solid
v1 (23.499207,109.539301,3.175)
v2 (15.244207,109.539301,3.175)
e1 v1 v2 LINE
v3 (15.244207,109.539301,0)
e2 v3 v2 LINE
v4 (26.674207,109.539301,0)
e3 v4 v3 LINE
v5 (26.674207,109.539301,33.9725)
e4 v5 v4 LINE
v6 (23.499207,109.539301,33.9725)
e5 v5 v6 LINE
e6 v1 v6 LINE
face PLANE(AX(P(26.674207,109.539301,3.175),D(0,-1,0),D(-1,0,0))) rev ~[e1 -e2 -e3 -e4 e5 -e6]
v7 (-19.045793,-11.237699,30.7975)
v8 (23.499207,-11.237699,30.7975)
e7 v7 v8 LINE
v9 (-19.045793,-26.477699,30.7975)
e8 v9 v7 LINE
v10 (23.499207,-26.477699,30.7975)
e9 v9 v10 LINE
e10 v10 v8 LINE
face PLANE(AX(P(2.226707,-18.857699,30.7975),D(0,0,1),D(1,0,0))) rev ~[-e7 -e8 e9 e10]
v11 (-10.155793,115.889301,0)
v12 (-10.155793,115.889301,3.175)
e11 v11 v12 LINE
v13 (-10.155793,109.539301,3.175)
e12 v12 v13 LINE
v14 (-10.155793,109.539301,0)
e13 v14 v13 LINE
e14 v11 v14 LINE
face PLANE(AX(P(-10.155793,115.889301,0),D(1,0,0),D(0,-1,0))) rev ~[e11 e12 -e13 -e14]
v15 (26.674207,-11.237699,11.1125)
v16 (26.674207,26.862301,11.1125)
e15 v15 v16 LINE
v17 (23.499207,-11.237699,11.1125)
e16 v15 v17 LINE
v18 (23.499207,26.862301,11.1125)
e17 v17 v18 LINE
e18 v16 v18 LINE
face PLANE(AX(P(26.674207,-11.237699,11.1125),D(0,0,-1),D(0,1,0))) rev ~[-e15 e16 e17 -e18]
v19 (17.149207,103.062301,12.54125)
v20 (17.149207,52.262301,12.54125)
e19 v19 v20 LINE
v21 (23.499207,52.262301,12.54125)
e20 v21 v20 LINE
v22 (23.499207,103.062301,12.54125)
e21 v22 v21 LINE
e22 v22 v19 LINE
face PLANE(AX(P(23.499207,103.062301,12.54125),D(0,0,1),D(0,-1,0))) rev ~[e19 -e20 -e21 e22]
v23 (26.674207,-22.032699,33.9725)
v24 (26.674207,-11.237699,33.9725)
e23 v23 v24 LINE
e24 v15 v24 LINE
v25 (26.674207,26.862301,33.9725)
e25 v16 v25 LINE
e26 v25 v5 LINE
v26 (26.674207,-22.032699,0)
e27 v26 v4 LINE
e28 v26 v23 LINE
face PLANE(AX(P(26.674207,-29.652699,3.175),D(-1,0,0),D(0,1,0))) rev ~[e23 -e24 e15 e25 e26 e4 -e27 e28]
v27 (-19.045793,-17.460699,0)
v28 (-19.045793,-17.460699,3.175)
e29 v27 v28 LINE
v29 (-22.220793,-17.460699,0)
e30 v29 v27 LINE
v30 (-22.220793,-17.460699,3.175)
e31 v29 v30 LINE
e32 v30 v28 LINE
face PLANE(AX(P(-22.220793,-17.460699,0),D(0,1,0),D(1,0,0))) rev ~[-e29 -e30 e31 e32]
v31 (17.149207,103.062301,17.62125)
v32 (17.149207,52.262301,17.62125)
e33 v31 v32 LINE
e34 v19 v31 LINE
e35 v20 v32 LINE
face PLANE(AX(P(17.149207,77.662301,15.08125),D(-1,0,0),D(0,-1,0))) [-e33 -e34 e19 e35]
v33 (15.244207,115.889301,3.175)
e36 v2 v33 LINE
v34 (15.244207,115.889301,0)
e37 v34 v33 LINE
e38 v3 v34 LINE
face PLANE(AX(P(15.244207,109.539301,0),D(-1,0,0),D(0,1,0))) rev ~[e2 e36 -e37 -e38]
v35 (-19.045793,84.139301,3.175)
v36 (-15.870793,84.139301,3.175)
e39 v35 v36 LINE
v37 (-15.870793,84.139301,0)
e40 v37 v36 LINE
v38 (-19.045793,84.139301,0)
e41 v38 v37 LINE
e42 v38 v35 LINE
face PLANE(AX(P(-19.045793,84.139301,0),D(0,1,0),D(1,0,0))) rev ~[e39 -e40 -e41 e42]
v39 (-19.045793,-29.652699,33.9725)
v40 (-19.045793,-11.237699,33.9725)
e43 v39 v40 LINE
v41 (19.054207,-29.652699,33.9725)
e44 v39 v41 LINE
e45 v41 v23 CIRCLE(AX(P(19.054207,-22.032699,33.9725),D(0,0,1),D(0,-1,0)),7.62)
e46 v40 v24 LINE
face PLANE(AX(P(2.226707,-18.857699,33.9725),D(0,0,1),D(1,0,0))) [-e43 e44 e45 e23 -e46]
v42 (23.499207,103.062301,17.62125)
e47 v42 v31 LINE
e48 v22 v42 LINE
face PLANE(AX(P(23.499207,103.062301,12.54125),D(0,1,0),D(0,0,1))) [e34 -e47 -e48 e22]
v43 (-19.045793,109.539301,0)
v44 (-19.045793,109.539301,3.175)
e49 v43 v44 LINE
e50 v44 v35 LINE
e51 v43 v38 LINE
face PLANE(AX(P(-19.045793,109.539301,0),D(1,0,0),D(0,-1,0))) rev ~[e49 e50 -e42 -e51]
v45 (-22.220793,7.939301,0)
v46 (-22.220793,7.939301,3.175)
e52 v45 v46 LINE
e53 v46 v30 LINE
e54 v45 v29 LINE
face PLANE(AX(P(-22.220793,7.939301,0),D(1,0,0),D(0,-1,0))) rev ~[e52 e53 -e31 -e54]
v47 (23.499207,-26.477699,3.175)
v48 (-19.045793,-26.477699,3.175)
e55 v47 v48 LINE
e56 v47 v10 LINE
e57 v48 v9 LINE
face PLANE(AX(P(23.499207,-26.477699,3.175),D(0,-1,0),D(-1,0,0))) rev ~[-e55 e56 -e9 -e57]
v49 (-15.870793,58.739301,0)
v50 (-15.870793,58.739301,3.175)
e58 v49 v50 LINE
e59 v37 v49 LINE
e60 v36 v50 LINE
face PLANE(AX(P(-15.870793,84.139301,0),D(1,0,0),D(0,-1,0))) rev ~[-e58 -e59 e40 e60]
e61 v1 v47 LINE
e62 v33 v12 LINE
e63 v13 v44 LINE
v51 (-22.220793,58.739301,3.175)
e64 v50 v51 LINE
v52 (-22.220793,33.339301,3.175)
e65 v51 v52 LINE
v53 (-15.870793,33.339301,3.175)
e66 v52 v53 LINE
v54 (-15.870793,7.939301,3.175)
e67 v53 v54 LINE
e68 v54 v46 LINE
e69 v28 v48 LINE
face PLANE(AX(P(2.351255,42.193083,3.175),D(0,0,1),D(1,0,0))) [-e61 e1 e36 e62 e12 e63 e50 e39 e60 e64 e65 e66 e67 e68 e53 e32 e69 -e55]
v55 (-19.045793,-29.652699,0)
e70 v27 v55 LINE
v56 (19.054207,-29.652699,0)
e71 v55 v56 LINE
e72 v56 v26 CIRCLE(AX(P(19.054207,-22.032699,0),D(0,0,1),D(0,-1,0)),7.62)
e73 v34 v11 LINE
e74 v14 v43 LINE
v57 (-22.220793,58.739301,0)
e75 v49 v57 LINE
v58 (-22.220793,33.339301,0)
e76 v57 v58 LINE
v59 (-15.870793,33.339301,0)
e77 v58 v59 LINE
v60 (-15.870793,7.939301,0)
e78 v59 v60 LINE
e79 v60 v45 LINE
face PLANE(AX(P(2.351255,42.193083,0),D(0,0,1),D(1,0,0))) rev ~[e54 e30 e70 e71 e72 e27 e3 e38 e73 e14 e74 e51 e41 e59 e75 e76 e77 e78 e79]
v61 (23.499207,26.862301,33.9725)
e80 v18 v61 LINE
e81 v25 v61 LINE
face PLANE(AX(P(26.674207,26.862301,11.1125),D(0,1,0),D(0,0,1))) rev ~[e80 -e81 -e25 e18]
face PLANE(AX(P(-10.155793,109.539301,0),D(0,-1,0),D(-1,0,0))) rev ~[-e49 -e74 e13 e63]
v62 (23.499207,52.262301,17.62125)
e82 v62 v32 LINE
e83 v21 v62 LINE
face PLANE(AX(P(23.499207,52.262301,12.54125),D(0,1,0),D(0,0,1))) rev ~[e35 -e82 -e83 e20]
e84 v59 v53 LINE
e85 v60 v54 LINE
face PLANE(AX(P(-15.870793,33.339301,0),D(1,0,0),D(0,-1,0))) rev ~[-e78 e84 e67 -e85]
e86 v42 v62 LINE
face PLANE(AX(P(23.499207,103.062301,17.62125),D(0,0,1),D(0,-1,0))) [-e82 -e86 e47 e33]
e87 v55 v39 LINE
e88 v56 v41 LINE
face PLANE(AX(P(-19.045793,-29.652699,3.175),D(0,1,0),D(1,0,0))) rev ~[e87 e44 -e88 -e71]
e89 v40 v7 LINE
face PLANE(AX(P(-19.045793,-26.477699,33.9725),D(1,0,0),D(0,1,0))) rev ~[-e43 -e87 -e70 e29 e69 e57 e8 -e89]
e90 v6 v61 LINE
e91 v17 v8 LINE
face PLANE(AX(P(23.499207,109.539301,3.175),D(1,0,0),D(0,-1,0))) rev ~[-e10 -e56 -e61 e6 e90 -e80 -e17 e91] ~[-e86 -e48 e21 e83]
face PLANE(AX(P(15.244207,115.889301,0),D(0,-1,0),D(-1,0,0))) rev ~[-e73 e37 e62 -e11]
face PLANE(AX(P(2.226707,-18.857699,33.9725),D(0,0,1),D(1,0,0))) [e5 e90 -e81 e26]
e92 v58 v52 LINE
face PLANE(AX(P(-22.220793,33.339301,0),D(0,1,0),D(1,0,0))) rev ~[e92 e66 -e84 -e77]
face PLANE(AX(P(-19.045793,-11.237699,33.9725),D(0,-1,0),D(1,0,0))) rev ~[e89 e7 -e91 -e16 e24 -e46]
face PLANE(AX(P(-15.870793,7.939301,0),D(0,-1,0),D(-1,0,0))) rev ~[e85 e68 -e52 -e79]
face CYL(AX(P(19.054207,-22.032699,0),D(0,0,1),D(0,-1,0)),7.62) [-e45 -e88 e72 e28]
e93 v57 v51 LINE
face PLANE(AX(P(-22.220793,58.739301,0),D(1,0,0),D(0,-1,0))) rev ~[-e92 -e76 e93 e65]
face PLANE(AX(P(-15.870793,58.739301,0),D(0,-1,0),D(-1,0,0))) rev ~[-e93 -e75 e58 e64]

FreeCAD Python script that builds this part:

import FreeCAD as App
import Part
import Sketcher
Q = App.Units.Quantity


def edges_at(feature, points):
    """Names of the edges that pass closest to the given points."""
    edges = feature.Shape.Edges
    near = lambda p: min(range(len(edges)), key=lambda i: edges[i].distToShape(Part.Vertex(*p))[0])
    return sorted({f"Edge{near(p) + 1}" for p in points})


def add_polygon(sketch, points):
    """Adds a closed chain of lines whose ends are joined by coincident constraints."""
    first, n = sketch.GeometryCount, len(points)
    for a, b in zip(points, points[1:] + points[:1]):
        sketch.addGeometry(Part.LineSegment(App.Vector(*a, 0), App.Vector(*b, 0)), False)
    for i in range(n):
        sketch.addConstraint(Sketcher.Constraint("Coincident", first + i, 2, first + (i + 1) % n, 1))

doc = App.newDocument("Part")
body = doc.addObject("PartDesign::Body", "Body")

# Sketch on XY plane
sketch1 = body.newObject("Sketcher::SketchObject", "Sketch")
sketch1.AttachmentSupport = (doc.getObject("XY_Plane"), [""])
sketch1.MapMode = "FlatFace"
add_polygon(sketch1, [(-10.2, 109.5), (-19, 109.5), (-19, 84.1), (-15.9, 84.1), (-15.9, 58.7), (-22.2, 58.7), (-22.2, 33.3), (-15.9, 33.3), (-15.9, 7.9), (-22.2, 7.9), (-22.2, -17.5), (-19, -17.5), (-19, -29.7), (26.7, -29.7), (26.7, 109.5), (15.2, 109.5), (15.2, 115.9), (-10.2, 115.9)])  # lines 0-17
sketch1.addConstraint([
    Sketcher.Constraint("Horizontal", 0),
    Sketcher.Constraint("Vertical", 1),
    Sketcher.Constraint("Horizontal", 2),
    Sketcher.Constraint("Vertical", 3),
    Sketcher.Constraint("Horizontal", 4),
    Sketcher.Constraint("Vertical", 5),
    Sketcher.Constraint("Horizontal", 6),
    Sketcher.Constraint("Vertical", 7),
    Sketcher.Constraint("Horizontal", 8),
    Sketcher.Constraint("Vertical", 9),
    Sketcher.Constraint("Horizontal", 10),
    Sketcher.Constraint("Vertical", 11),
    Sketcher.Constraint("Horizontal", 12),
    Sketcher.Constraint("Vertical", 13),
    Sketcher.Constraint("Horizontal", 14),
    Sketcher.Constraint("Vertical", 15),
    Sketcher.Constraint("Horizontal", 16),
    Sketcher.Constraint("Vertical", 17),
    Sketcher.Constraint("Horizontal", 0, 2, 13, 2),
    Sketcher.Constraint("Vertical", 3, 2, 6, 2),
    Sketcher.Constraint("Vertical", 5, 2, 8, 2),
    Sketcher.Constraint("Vertical", 1, 2, 10, 2),
    Sketcher.Constraint("Equal", 2, 10),
    Sketcher.Constraint("Equal", 16, 1),
    Sketcher.Constraint("Equal", 1, 3),
    Sketcher.Constraint("Equal", 3, 5),
    Sketcher.Constraint("Equal", 5, 7),
    Sketcher.Constraint("Equal", 7, 9),
    Sketcher.Constraint("Equal", 8, 15),
    Sketcher.Constraint("DistanceX", 16, 2, 16, 1, Q("1 in")),
    Sketcher.Constraint("DistanceX", 12, 1, 12, 2, Q("1.8 in")),
    Sketcher.Constraint("DistanceX", 0, 2, 0, 1, Q("0.35 in")),
    Sketcher.Constraint("DistanceX", 4, 2, 4, 1, Q("0.25 in")),
    Sketcher.Constraint("DistanceY", 11, 2, 11, 1, Q("0.48 in")),
    Sketcher.Constraint("DistanceY", -1, 1, 0, 2, 109.539301),
    Sketcher.Constraint("DistanceX", 0, 2, -1, 1, 19.045793),
])
pad1 = body.newObject("PartDesign::Pad", "Pad")
pad1.Profile = sketch1
pad1.Length = Q("0.125 in")

# Sketch on XY plane
sketch2 = body.newObject("Sketcher::SketchObject", "Sketch001")
sketch2.AttachmentSupport = (doc.getObject("XY_Plane"), [""])
sketch2.MapMode = "FlatFace"
sketch2.AttachmentOffset = App.Placement(App.Vector(0, 0, 0.125 * 25.4), App.Rotation())
add_polygon(sketch2, [(23.5, -26.5), (-19, -26.5), (-19, -29.7), (26.7, -29.7), (26.7, 109.5), (23.5, 109.5)])  # lines 0-5
sketch2.addConstraint([
    Sketcher.Constraint("Horizontal", 0),
    Sketcher.Constraint("Vertical", 1),
    Sketcher.Constraint("Horizontal", 2),
    Sketcher.Constraint("Vertical", 3),
    Sketcher.Constraint("Horizontal", 4),
    Sketcher.Constraint("Vertical", 5),
    Sketcher.Constraint("Equal", 4, 1),
    Sketcher.Constraint("DistanceX", 2, 1, 2, 2, Q("1.8 in")),
    Sketcher.Constraint("DistanceY", 3, 1, 3, 2, Q("5.48 in")),
    Sketcher.Constraint("DistanceX", 0, 2, 0, 1, Q("1.675 in")),
    Sketcher.Constraint("DistanceY", 0, 2, -1, 1, 26.477699),
    Sketcher.Constraint("DistanceX", 0, 2, -1, 1, 19.045793),
])
pad2 = body.newObject("PartDesign::Pad", "Pad001")
pad2.Profile = sketch2
pad2.Length = Q("1.2125 in")

# Sketch on XY plane
sketch3 = body.newObject("Sketcher::SketchObject", "Sketch002")
sketch3.AttachmentSupport = (doc.getObject("XY_Plane"), [""])
sketch3.MapMode = "FlatFace"
sketch3.AttachmentOffset = App.Placement(App.Vector(0, 0, 1.3375 * 25.4), App.Rotation())
add_polygon(sketch3, [(-19, -11), (-19, -26), (23, -26), (23, -11)])  # lines 0-3
sketch3.addConstraint([
    Sketcher.Constraint("Vertical", 0),
    Sketcher.Constraint("Horizontal", 1),
    Sketcher.Constraint("Vertical", 2),
    Sketcher.Constraint("Horizontal", 3),
    Sketcher.Constraint("DistanceY", 0, 2, 0, 1, Q("0.6 in")),
    Sketcher.Constraint("DistanceX", 1, 1, 1, 2, Q("1.675 in")),
    Sketcher.Constraint("DistanceY", 0, 2, -1, 1, 26.477699),
    Sketcher.Constraint("DistanceX", 0, 2, -1, 1, 19.045793),
])
pad3 = body.newObject("PartDesign::Pad", "Pad002")
pad3.Profile = sketch3
pad3.Length = Q("0.125 in")
pad3.Reversed = True

# Sketch on YZ plane
sketch4 = body.newObject("Sketcher::SketchObject", "Sketch003")
sketch4.AttachmentSupport = (doc.getObject("YZ_Plane"), [""])
sketch4.MapMode = "FlatFace"
sketch4.AttachmentOffset = App.Placement(App.Vector(0, 0, 26.674207), App.Rotation())
add_polygon(sketch4, [(-11, 34), (-11, 11), (27, 11), (27, 34)])  # lines 0-3
sketch4.addConstraint([
    Sketcher.Constraint("Vertical", 0),
    Sketcher.Constraint("Horizontal", 1),
    Sketcher.Constraint("Vertical", 2),
    Sketcher.Constraint("Horizontal", 3),
    Sketcher.Constraint("DistanceX", 1, 1, 1, 2, Q("1.5 in")),
    Sketcher.Constraint("DistanceY", 0, 2, 0, 1, Q("0.9 in")),
    Sketcher.Constraint("DistanceY", -1, 1, 0, 2, Q("0.4375 in")),
    Sketcher.Constraint("DistanceX", 0, 2, -1, 1, 11.237699),
])
pocket1 = body.newObject("PartDesign::Pocket", "Pocket")
pocket1.Profile = sketch4
pocket1.Type = "ThroughAll"

# Sketch on YZ plane
sketch5 = body.newObject("Sketcher::SketchObject", "Sketch004")
sketch5.AttachmentSupport = (doc.getObject("YZ_Plane"), [""])
sketch5.MapMode = "FlatFace"
sketch5.AttachmentOffset = App.Placement(App.Vector(0, 0, 23.499207), App.Rotation())
add_polygon(sketch5, [(103, 18), (103, 13), (52, 13), (52, 18)])  # lines 0-3
sketch5.addConstraint([
    Sketcher.Constraint("Vertical", 0),
    Sketcher.Constraint("Horizontal", 1),
    Sketcher.Constraint("Vertical", 2),
    Sketcher.Constraint("Horizontal", 3),
    Sketcher.Constraint("DistanceX", 1, 2, 1, 1, Q("2 in")),
    Sketcher.Constraint("DistanceY", 0, 2, 0, 1, Q("0.2 in")),
    Sketcher.Constraint("DistanceX", -1, 1, 0, 2, 103.062301),
    Sketcher.Constraint("DistanceY", -1, 1, 0, 2, 12.54125),
])
pad4 = body.newObject("PartDesign::Pad", "Pad003")
pad4.Profile = sketch5
pad4.Length = Q("0.25 in")
pad4.Reversed = True
doc.recompute()

fillet = body.newObject("PartDesign::Fillet", "Fillet")
fillet.Base = (pad4, edges_at(pad4, [(26.674, -29.653, 16.986)]))
fillet.Radius = Q("0.3 in")

doc.recompute()
